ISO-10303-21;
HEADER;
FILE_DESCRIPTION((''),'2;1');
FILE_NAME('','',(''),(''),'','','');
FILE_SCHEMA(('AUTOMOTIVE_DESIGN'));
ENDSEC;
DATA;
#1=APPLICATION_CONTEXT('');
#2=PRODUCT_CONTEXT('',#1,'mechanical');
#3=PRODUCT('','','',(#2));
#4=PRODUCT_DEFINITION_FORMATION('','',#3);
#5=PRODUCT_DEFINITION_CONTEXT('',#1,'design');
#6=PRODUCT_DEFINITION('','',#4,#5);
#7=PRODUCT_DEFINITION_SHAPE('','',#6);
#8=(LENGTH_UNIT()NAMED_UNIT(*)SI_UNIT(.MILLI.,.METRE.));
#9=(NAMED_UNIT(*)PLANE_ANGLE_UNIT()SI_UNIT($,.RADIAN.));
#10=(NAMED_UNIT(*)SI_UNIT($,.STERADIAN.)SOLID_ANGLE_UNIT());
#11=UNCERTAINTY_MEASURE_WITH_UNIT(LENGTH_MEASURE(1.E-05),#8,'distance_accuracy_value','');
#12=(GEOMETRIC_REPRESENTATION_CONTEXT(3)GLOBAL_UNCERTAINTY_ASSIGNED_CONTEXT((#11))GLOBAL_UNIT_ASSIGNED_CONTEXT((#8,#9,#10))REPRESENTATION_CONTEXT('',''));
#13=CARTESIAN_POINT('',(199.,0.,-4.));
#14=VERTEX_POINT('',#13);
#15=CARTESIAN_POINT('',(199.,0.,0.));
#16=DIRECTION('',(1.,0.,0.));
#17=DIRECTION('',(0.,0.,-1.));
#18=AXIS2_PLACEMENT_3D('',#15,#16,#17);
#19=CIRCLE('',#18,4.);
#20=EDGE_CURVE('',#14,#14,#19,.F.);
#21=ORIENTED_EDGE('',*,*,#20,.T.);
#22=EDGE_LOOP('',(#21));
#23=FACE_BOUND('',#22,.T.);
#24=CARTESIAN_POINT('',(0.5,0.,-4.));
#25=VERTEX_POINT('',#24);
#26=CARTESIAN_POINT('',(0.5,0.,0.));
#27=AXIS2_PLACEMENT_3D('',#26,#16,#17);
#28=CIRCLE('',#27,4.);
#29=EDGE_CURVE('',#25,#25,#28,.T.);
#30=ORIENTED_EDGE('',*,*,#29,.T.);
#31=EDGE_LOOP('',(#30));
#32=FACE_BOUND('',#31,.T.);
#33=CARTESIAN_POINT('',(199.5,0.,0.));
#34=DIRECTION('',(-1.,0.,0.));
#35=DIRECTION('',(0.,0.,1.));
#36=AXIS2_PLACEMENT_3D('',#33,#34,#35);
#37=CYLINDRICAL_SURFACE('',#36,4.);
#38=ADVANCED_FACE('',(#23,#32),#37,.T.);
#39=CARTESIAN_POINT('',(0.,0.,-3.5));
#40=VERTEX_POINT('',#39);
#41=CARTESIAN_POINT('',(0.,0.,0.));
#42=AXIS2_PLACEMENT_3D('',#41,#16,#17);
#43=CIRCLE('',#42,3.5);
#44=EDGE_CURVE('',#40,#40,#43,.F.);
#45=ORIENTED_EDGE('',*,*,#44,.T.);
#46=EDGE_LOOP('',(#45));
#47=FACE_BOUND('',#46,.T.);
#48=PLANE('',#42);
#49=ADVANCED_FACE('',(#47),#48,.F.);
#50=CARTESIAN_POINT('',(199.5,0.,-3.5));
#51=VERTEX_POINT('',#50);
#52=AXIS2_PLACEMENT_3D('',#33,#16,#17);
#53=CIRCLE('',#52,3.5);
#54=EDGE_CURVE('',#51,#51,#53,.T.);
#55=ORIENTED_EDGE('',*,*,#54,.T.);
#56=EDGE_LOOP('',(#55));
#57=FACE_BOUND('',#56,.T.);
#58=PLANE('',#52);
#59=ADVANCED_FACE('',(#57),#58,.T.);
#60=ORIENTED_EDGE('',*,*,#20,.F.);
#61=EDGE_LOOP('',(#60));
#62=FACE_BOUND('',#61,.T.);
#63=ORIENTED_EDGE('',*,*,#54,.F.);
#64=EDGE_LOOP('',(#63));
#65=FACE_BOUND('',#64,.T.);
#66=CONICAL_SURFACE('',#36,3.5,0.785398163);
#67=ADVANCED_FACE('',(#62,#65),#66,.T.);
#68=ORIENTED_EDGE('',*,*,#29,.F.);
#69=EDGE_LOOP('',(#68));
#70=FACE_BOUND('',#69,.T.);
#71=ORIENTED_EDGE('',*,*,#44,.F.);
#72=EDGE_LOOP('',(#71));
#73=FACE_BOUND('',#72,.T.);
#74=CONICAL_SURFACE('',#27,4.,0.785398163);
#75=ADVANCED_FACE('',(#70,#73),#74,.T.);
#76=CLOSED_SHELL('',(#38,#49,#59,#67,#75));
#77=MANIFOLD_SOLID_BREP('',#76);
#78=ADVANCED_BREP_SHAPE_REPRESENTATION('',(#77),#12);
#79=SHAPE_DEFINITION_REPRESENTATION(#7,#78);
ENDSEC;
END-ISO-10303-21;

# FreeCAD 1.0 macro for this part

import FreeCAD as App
import Part
import Sketcher

V = App.Vector


def edges_at(feature, points):
    """Names of the edges that pass closest to the given points."""
    edges = feature.Shape.Edges
    near = lambda p: min(range(len(edges)), key=lambda i: edges[i].distToShape(Part.Vertex(*p))[0])
    return sorted({f"Edge{near(p) + 1}" for p in points})

doc = App.newDocument("Part")
body = doc.addObject("PartDesign::Body", "Body")

sketch1 = body.newObject("Sketcher::SketchObject", "Sketch")
sketch1.AttachmentSupport = (doc.getObject("YZ_Plane"), [""])
sketch1.MapMode = "FlatFace"
sketch1.addGeometry(Part.Circle(V(0, 0, 0), V(0, 0, 1), 4), False)
sketch1.addConstraint(Sketcher.Constraint("Coincident", 0, 3, -1, 1))
sketch1.addConstraint(Sketcher.Constraint("Diameter", 0, 8.0))
pad1 = body.newObject("PartDesign::Pad", "Pad")
pad1.Profile = sketch1
pad1.Length = 199.5
doc.recompute()

chamfer = body.newObject("PartDesign::Chamfer", "Chamfer")
chamfer.Base = (pad1, edges_at(pad1, [(0, 0, 4), (199.5, 0, 4)]))
chamfer.Size = 0.5

doc.recompute()
